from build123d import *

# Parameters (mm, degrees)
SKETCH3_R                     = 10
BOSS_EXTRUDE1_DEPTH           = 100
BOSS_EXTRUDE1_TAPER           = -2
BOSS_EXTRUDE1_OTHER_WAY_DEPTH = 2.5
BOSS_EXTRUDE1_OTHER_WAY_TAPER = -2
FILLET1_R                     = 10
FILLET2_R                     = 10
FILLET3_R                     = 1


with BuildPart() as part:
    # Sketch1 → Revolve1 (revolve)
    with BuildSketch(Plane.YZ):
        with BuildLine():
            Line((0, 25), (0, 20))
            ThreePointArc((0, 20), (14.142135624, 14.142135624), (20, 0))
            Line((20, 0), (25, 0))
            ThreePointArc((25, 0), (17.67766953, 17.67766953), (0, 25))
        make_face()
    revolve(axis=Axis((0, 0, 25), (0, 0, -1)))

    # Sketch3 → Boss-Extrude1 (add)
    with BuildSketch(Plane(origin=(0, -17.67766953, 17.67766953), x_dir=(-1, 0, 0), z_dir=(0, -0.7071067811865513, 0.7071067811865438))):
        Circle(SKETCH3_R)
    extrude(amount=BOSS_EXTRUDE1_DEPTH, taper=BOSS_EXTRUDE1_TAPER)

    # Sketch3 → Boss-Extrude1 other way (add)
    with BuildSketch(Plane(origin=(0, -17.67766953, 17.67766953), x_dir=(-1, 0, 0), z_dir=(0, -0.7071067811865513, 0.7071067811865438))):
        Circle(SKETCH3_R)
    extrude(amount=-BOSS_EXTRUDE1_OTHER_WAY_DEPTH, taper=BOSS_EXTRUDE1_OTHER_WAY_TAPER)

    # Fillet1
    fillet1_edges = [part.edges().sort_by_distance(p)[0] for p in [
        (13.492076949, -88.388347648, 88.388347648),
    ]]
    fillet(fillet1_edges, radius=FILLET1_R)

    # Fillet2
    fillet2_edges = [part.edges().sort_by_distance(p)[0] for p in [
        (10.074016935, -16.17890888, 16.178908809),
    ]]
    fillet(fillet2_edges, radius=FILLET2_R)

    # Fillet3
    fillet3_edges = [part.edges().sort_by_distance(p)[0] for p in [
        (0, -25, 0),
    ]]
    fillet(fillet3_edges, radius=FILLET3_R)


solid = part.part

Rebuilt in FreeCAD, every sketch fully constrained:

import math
import FreeCAD as App
import Part
import Sketcher

V = App.Vector


def edges_at(feature, points):
    """Names of the edges that pass closest to the given points."""
    edges = feature.Shape.Edges
    near = lambda p: min(range(len(edges)), key=lambda i: edges[i].distToShape(Part.Vertex(*p))[0])
    return sorted({f"Edge{near(p) + 1}" for p in points})

doc = App.newDocument("Part")
body = doc.addObject("PartDesign::Body", "Body")
body.AllowCompound = True

sketch1 = body.newObject("Sketcher::SketchObject", "Sketch")
sketch1.AttachmentSupport = (doc.getObject("YZ_Plane"), [""])
sketch1.MapMode = "FlatFace"
sketch1.addGeometry(Part.LineSegment(V(0, 25, 0), V(0, 20, 0)), False)
sketch1.addGeometry(Part.ArcOfCircle(Part.Circle(V(0, 0, 0), V(0, 0, 1), 20), math.radians(0), math.radians(90)), False)
sketch1.addGeometry(Part.LineSegment(V(20, 0, 0), V(25, 0, 0)), False)
sketch1.addGeometry(Part.ArcOfCircle(Part.Circle(V(0, 0, 0), V(0, 0, 1), 25), math.radians(0), math.radians(90)), False)
sketch1.addConstraint(Sketcher.Constraint("Coincident", 0, 2, 1, 2))
sketch1.addConstraint(Sketcher.Constraint("Coincident", 1, 1, 2, 1))
sketch1.addConstraint(Sketcher.Constraint("Coincident", 2, 2, 3, 1))
sketch1.addConstraint(Sketcher.Constraint("Coincident", 3, 2, 0, 1))
sketch1.addConstraint(Sketcher.Constraint("Vertical", 0))
sketch1.addConstraint(Sketcher.Constraint("Horizontal", 2))
sketch1.addConstraint(Sketcher.Constraint("Coincident", 1, 3, -1, 1))
sketch1.addConstraint(Sketcher.Constraint("Coincident", 3, 3, -1, 1))
sketch1.addConstraint(Sketcher.Constraint("PointOnObject", 0, 2, -2))
sketch1.addConstraint(Sketcher.Constraint("PointOnObject", 1, 1, -1))
sketch1.addConstraint(Sketcher.Constraint("Radius", 1, 20.0))
sketch1.addConstraint(Sketcher.Constraint("Radius", 3, 25.0))
revolution = body.newObject("PartDesign::Revolution", "Revolution")
revolution.Profile = sketch1
revolution.ReferenceAxis = (sketch1, ["V_Axis"])
revolution.Angle = 360

sketch2 = body.newObject("Sketcher::SketchObject", "Sketch001")
sketch2.Placement = App.Placement(V(0, -17.67767, 17.67767), App.Rotation(V(-1, 0, 0), V(0, -0.707106781, -0.707106781), V(0, -0.707106781, 0.707106781), "ZXY"))
sketch2.addGeometry(Part.Circle(V(0, 0, 0), V(0, 0, 1), 10), False)
sketch2.addConstraint(Sketcher.Constraint("Coincident", 0, 3, -1, 1))
sketch2.addConstraint(Sketcher.Constraint("Diameter", 0, 20.0))
pad1 = body.newObject("PartDesign::Pad", "Pad")
pad1.Profile = sketch2
pad1.Length = 100
pad1.TaperAngle = 2

sketch3 = body.newObject("Sketcher::SketchObject", "Sketch002")
sketch3.Placement = App.Placement(V(0, -17.67767, 17.67767), App.Rotation(V(-1, 0, 0), V(0, -0.707106781, -0.707106781), V(0, -0.707106781, 0.707106781), "ZXY"))
sketch3.addGeometry(Part.Circle(V(0, 0, 0), V(0, 0, 1), 10), False)
sketch3.addConstraint(Sketcher.Constraint("Coincident", 0, 3, -1, 1))
sketch3.addConstraint(Sketcher.Constraint("Diameter", 0, 20.0))
pad2 = body.newObject("PartDesign::Pad", "Pad001")
pad2.Profile = sketch3
pad2.Length = 2.5
pad2.Reversed = True
pad2.TaperAngle = 2
doc.recompute()

fillet = body.newObject("PartDesign::Fillet", "Fillet")
fillet.Base = (pad2, edges_at(pad2, [(13.492, -88.388, 88.388)]))
fillet.Radius = 10
doc.recompute()

fillet2 = body.newObject("PartDesign::Fillet", "Fillet001")
fillet2.Base = (fillet, edges_at(fillet, [(10.074, -16.179, 16.179)]))
fillet2.Radius = 10
doc.recompute()

fillet3 = body.newObject("PartDesign::Fillet", "Fillet002")
fillet3.Base = (fillet2, edges_at(fillet2, [(0, -25, 0)]))
fillet3.Radius = 1

doc.recompute()
